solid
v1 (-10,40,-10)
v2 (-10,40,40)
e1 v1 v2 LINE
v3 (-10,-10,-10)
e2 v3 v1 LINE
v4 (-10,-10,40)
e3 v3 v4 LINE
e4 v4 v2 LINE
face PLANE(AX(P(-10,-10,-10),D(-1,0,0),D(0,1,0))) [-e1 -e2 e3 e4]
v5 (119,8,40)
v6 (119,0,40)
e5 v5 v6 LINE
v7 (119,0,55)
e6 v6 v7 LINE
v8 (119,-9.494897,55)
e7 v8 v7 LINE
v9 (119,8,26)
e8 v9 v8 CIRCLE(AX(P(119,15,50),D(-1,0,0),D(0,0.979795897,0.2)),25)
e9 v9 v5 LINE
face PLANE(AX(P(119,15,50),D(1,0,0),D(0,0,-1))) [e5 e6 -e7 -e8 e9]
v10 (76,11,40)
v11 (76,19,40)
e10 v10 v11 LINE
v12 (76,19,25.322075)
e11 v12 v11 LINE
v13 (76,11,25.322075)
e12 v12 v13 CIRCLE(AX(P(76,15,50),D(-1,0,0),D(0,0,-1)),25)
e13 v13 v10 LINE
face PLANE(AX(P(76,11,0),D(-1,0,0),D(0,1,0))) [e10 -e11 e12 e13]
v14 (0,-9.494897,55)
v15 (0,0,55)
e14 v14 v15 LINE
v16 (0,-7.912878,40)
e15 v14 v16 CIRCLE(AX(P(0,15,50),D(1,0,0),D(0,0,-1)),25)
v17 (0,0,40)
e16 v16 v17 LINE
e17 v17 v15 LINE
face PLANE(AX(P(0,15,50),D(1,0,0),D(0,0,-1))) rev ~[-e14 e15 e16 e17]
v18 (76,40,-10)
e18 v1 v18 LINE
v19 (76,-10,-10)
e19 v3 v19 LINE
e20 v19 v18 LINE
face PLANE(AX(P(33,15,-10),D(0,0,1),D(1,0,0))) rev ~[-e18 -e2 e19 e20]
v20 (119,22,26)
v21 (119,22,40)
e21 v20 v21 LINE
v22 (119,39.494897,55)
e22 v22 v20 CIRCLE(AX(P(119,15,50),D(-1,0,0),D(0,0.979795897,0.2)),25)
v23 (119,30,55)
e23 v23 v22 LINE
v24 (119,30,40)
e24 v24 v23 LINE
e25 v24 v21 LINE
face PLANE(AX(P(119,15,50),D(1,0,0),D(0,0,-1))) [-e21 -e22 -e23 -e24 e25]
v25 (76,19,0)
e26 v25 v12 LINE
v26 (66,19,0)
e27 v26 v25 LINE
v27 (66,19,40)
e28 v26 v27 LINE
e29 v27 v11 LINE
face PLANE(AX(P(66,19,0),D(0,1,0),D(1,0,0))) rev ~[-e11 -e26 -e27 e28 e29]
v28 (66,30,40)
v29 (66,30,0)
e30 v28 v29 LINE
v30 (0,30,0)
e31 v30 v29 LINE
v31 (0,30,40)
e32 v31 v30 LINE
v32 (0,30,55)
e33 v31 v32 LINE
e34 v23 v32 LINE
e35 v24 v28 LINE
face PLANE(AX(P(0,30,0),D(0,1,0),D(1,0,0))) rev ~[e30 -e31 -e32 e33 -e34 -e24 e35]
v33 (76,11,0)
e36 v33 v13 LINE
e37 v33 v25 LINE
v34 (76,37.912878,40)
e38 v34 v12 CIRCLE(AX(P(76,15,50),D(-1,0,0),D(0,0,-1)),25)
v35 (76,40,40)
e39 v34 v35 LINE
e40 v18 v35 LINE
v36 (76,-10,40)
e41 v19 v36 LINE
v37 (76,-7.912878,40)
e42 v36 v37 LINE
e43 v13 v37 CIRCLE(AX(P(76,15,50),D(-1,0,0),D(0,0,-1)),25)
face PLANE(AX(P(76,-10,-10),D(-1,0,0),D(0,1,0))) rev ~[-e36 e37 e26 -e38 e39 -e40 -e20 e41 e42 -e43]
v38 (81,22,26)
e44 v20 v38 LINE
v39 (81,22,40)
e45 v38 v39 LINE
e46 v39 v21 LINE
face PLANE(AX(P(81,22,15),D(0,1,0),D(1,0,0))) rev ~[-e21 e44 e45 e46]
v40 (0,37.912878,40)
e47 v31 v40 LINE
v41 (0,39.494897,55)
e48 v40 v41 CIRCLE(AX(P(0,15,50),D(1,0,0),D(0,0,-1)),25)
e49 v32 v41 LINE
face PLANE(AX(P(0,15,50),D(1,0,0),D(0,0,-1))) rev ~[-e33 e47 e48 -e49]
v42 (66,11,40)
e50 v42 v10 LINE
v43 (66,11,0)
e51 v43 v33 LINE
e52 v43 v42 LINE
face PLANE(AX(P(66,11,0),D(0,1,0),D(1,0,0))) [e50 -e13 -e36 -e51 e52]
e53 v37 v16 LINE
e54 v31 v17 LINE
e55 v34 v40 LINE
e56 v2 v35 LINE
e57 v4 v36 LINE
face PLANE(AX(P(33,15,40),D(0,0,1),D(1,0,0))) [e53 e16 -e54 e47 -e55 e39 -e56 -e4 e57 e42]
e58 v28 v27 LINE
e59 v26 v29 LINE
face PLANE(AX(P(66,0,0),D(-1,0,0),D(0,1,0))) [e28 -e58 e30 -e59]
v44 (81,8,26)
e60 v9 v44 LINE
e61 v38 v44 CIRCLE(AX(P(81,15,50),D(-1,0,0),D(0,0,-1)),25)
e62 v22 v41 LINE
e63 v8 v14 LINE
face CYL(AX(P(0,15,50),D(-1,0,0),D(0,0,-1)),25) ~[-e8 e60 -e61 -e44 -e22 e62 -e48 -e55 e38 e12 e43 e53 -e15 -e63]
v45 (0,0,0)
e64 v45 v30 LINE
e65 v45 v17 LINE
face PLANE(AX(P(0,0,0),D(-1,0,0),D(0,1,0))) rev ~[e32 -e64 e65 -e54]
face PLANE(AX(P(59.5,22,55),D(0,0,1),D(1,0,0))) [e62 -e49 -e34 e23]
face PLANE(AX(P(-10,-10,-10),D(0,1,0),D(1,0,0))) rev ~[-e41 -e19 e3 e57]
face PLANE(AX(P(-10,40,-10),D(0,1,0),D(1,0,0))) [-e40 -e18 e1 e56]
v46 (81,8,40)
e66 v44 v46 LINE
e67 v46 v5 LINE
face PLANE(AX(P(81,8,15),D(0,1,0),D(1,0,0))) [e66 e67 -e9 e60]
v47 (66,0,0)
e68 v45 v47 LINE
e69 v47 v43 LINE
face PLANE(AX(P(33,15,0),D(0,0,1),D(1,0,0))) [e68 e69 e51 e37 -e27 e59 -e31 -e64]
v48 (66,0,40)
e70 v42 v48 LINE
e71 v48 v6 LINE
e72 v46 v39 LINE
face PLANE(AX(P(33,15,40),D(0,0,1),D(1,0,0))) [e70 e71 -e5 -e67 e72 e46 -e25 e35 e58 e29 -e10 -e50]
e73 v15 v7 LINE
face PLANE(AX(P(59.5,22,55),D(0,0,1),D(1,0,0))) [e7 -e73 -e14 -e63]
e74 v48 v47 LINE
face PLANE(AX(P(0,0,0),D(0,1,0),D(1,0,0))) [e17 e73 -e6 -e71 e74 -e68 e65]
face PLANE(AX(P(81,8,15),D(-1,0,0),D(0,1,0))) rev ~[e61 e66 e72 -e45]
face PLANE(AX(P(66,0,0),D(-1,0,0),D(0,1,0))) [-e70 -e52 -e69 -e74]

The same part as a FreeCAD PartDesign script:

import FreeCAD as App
import Part
import Sketcher

doc = App.newDocument("Part")
body = doc.addObject("PartDesign::Body", "Body")

# Sketch on XY plane
sketch1 = body.newObject("Sketcher::SketchObject", "Sketch")
sketch1.AttachmentSupport = (doc.getObject("XY_Plane"), [""])
sketch1.MapMode = "FlatFace"
sketch1.addGeometry(Part.LineSegment(App.Vector(66, 19, 0), App.Vector(66, 11, 0)), False)
sketch1.addGeometry(Part.LineSegment(App.Vector(66, 11, 0), App.Vector(76, 11, 0)), False)
sketch1.addGeometry(Part.LineSegment(App.Vector(76, 11, 0), App.Vector(76, 19, 0)), False)
sketch1.addGeometry(Part.LineSegment(App.Vector(76, 19, 0), App.Vector(66, 19, 0)), False)
sketch1.addConstraint(Sketcher.Constraint("Coincident", 0, 2, 1, 1))
sketch1.addConstraint(Sketcher.Constraint("Coincident", 1, 2, 2, 1))
sketch1.addConstraint(Sketcher.Constraint("Coincident", 2, 2, 3, 1))
sketch1.addConstraint(Sketcher.Constraint("Coincident", 3, 2, 0, 1))
sketch1.addConstraint(Sketcher.Constraint("Vertical", 0))
sketch1.addConstraint(Sketcher.Constraint("Horizontal", 1))
sketch1.addConstraint(Sketcher.Constraint("Vertical", 2))
sketch1.addConstraint(Sketcher.Constraint("Horizontal", 3))
sketch1.addConstraint(Sketcher.Constraint("DistanceX", 1, 1, 1, 2, 10.0))
sketch1.addConstraint(Sketcher.Constraint("DistanceY", 0, 2, 0, 1, 8.0))
sketch1.addConstraint(Sketcher.Constraint("DistanceX", -1, 1, 0, 2, 66.0))
sketch1.addConstraint(Sketcher.Constraint("DistanceY", -1, 1, 0, 2, 11.0))
pad1 = body.newObject("PartDesign::Pad", "Pad")
pad1.Profile = sketch1
pad1.Length = 40
body2 = doc.addObject("PartDesign::Body", "Body001")

# Sketch on XY plane
sketch2 = body2.newObject("Sketcher::SketchObject", "Sketch001")
sketch2.AttachmentSupport = (doc.getObject("XY_Plane001"), [""])
sketch2.MapMode = "FlatFace"
sketch2.AttachmentOffset = App.Placement(App.Vector(0, 0, 15), App.Rotation())
sketch2.addGeometry(Part.LineSegment(App.Vector(81, 22, 0), App.Vector(81, 8, 0)), False)
sketch2.addGeometry(Part.LineSegment(App.Vector(81, 8, 0), App.Vector(148, 8, 0)), False)
sketch2.addGeometry(Part.LineSegment(App.Vector(148, 8, 0), App.Vector(148, 22, 0)), False)
sketch2.addGeometry(Part.LineSegment(App.Vector(148, 22, 0), App.Vector(81, 22, 0)), False)
sketch2.addConstraint(Sketcher.Constraint("Coincident", 0, 2, 1, 1))
sketch2.addConstraint(Sketcher.Constraint("Coincident", 1, 2, 2, 1))
sketch2.addConstraint(Sketcher.Constraint("Coincident", 2, 2, 3, 1))
sketch2.addConstraint(Sketcher.Constraint("Coincident", 3, 2, 0, 1))
sketch2.addConstraint(Sketcher.Constraint("Vertical", 0))
sketch2.addConstraint(Sketcher.Constraint("Horizontal", 1))
sketch2.addConstraint(Sketcher.Constraint("Vertical", 2))
sketch2.addConstraint(Sketcher.Constraint("Horizontal", 3))
sketch2.addConstraint(Sketcher.Constraint("DistanceX", 1, 1, 1, 2, 67.0))
sketch2.addConstraint(Sketcher.Constraint("DistanceY", 0, 2, 0, 1, 14.0))
sketch2.addConstraint(Sketcher.Constraint("DistanceX", -1, 1, 0, 2, 81.0))
sketch2.addConstraint(Sketcher.Constraint("DistanceY", -1, 1, 0, 2, 8.0))
pad2 = body2.newObject("PartDesign::Pad", "Pad001")
pad2.Profile = sketch2
pad2.Length = 25
body3 = doc.addObject("PartDesign::Body", "Body002")

# Sketch on XY plane
sketch3 = body3.newObject("Sketcher::SketchObject", "Sketch002")
sketch3.AttachmentSupport = (doc.getObject("XY_Plane002"), [""])
sketch3.MapMode = "FlatFace"
sketch3.AttachmentOffset = App.Placement(App.Vector(0, 0, 40), App.Rotation())
sketch3.addGeometry(Part.LineSegment(App.Vector(66, 30, 0), App.Vector(66, 0, 0)), False)
sketch3.addGeometry(Part.LineSegment(App.Vector(66, 0, 0), App.Vector(133, 0, 0)), False)
sketch3.addGeometry(Part.LineSegment(App.Vector(133, 0, 0), App.Vector(133, 30, 0)), False)
sketch3.addGeometry(Part.LineSegment(App.Vector(133, 30, 0), App.Vector(66, 30, 0)), False)
sketch3.addConstraint(Sketcher.Constraint("Coincident", 0, 2, 1, 1))
sketch3.addConstraint(Sketcher.Constraint("Coincident", 1, 2, 2, 1))
sketch3.addConstraint(Sketcher.Constraint("Coincident", 2, 2, 3, 1))
sketch3.addConstraint(Sketcher.Constraint("Coincident", 3, 2, 0, 1))
sketch3.addConstraint(Sketcher.Constraint("Vertical", 0))
sketch3.addConstraint(Sketcher.Constraint("Horizontal", 1))
sketch3.addConstraint(Sketcher.Constraint("Vertical", 2))
sketch3.addConstraint(Sketcher.Constraint("Horizontal", 3))
sketch3.addConstraint(Sketcher.Constraint("PointOnObject", 0, 2, -1))
sketch3.addConstraint(Sketcher.Constraint("DistanceX", 1, 1, 1, 2, 67.0))
sketch3.addConstraint(Sketcher.Constraint("DistanceY", 0, 2, 0, 1, 30.0))
sketch3.addConstraint(Sketcher.Constraint("DistanceX", -1, 1, 0, 2, 66.0))
pad3 = body3.newObject("PartDesign::Pad", "Pad002")
pad3.Profile = sketch3
pad3.Length = 15
body4 = doc.addObject("PartDesign::Body", "Body003")

# Sketch on XY plane
sketch4 = body4.newObject("Sketcher::SketchObject", "Sketch003")
sketch4.AttachmentSupport = (doc.getObject("XY_Plane003"), [""])
sketch4.MapMode = "FlatFace"
sketch4.AttachmentOffset = App.Placement(App.Vector(0, 0, 55), App.Rotation())
sketch4.addGeometry(Part.LineSegment(App.Vector(0, 57, 0), App.Vector(0, -13, 0)), False)
sketch4.addGeometry(Part.LineSegment(App.Vector(0, -13, 0), App.Vector(119, -13, 0)), False)
sketch4.addGeometry(Part.LineSegment(App.Vector(119, -13, 0), App.Vector(119, 57, 0)), False)
sketch4.addGeometry(Part.LineSegment(App.Vector(119, 57, 0), App.Vector(0, 57, 0)), False)
sketch4.addConstraint(Sketcher.Constraint("Coincident", 0, 2, 1, 1))
sketch4.addConstraint(Sketcher.Constraint("Coincident", 1, 2, 2, 1))
sketch4.addConstraint(Sketcher.Constraint("Coincident", 2, 2, 3, 1))
sketch4.addConstraint(Sketcher.Constraint("Coincident", 3, 2, 0, 1))
sketch4.addConstraint(Sketcher.Constraint("Vertical", 0))
sketch4.addConstraint(Sketcher.Constraint("Horizontal", 1))
sketch4.addConstraint(Sketcher.Constraint("Vertical", 2))
sketch4.addConstraint(Sketcher.Constraint("Horizontal", 3))
sketch4.addConstraint(Sketcher.Constraint("PointOnObject", 0, 2, -2))
sketch4.addConstraint(Sketcher.Constraint("DistanceX", 1, 1, 1, 2, 119.0))
sketch4.addConstraint(Sketcher.Constraint("DistanceY", 0, 2, 0, 1, 70.0))
sketch4.addConstraint(Sketcher.Constraint("DistanceY", 0, 2, -1, 1, 13.0))
pad4 = body4.newObject("PartDesign::Pad", "Pad003")
pad4.Profile = sketch4
pad4.Length = 30
body5 = doc.addObject("PartDesign::Body", "Body004")

# Sketch on XY plane
sketch5 = body5.newObject("Sketcher::SketchObject", "Sketch004")
sketch5.AttachmentSupport = (doc.getObject("XY_Plane004"), [""])
sketch5.MapMode = "FlatFace"
sketch5.addGeometry(Part.LineSegment(App.Vector(0, 30, 0), App.Vector(0, 0, 0)), False)
sketch5.addGeometry(Part.LineSegment(App.Vector(0, 0, 0), App.Vector(66, 0, 0)), False)
sketch5.addGeometry(Part.LineSegment(App.Vector(66, 0, 0), App.Vector(66, 30, 0)), False)
sketch5.addGeometry(Part.LineSegment(App.Vector(66, 30, 0), App.Vector(0, 30, 0)), False)
sketch5.addConstraint(Sketcher.Constraint("Coincident", 0, 2, 1, 1))
sketch5.addConstraint(Sketcher.Constraint("Coincident", 1, 2, 2, 1))
sketch5.addConstraint(Sketcher.Constraint("Coincident", 2, 2, 3, 1))
sketch5.addConstraint(Sketcher.Constraint("Coincident", 3, 2, 0, 1))
sketch5.addConstraint(Sketcher.Constraint("Vertical", 0))
sketch5.addConstraint(Sketcher.Constraint("Horizontal", 1))
sketch5.addConstraint(Sketcher.Constraint("Vertical", 2))
sketch5.addConstraint(Sketcher.Constraint("Horizontal", 3))
sketch5.addConstraint(Sketcher.Constraint("Coincident", 0, 2, -1, 1))
sketch5.addConstraint(Sketcher.Constraint("DistanceX", 1, 1, 1, 2, 66.0))
sketch5.addConstraint(Sketcher.Constraint("DistanceY", 0, 2, 0, 1, 30.0))
pad5 = body5.newObject("PartDesign::Pad", "Pad004")
pad5.Profile = sketch5
pad5.Length = 60
body6 = doc.addObject("PartDesign::Body", "Body005")

# Sketch on YZ plane
sketch6 = body6.newObject("Sketcher::SketchObject", "Sketch005")
sketch6.AttachmentSupport = (doc.getObject("YZ_Plane005"), [""])
sketch6.MapMode = "FlatFace"
sketch6.addGeometry(Part.Circle(App.Vector(15, 50, 0), App.Vector(0, 0, 1), 25), False)
sketch6.addConstraint(Sketcher.Constraint("Diameter", 0, 50.0))
sketch6.addConstraint(Sketcher.Constraint("DistanceX", -1, 1, 0, 3, 15.0))
sketch6.addConstraint(Sketcher.Constraint("DistanceY", -1, 1, 0, 3, 50.0))
pad6 = body6.newObject("PartDesign::Pad", "Pad005")
pad6.Profile = sketch6
pad6.Length = 119
doc.recompute()

body7 = doc.addObject("PartDesign::Body", "Body006")
body7.BaseFeature = body5
boolean = body6.newObject("PartDesign::Boolean", "Boolean")
boolean.Type = "Cut"
boolean.addObjects([body7])
doc.recompute()

boolean2 = body6.newObject("PartDesign::Boolean", "Boolean001")
boolean2.Type = "Cut"
boolean2.addObjects([body4])
doc.recompute()

boolean3 = body6.newObject("PartDesign::Boolean", "Boolean002")
boolean3.Type = "Cut"
boolean3.addObjects([body3])
doc.recompute()

boolean4 = body6.newObject("PartDesign::Boolean", "Boolean003")
boolean4.Type = "Cut"
boolean4.addObjects([body2])
body8 = doc.addObject("PartDesign::Body", "Body007")

# Sketch on XY plane
sketch7 = body8.newObject("Sketcher::SketchObject", "Sketch006")
sketch7.AttachmentSupport = (doc.getObject("XY_Plane007"), [""])
sketch7.MapMode = "FlatFace"
sketch7.AttachmentOffset = App.Placement(App.Vector(0, 0, -10), App.Rotation())
sketch7.addGeometry(Part.LineSegment(App.Vector(-10, 40, 0), App.Vector(-10, -10, 0)), False)
sketch7.addGeometry(Part.LineSegment(App.Vector(-10, -10, 0), App.Vector(76, -10, 0)), False)
sketch7.addGeometry(Part.LineSegment(App.Vector(76, -10, 0), App.Vector(76, 40, 0)), False)
sketch7.addGeometry(Part.LineSegment(App.Vector(76, 40, 0), App.Vector(-10, 40, 0)), False)
sketch7.addConstraint(Sketcher.Constraint("Coincident", 0, 2, 1, 1))
sketch7.addConstraint(Sketcher.Constraint("Coincident", 1, 2, 2, 1))
sketch7.addConstraint(Sketcher.Constraint("Coincident", 2, 2, 3, 1))
sketch7.addConstraint(Sketcher.Constraint("Coincident", 3, 2, 0, 1))
sketch7.addConstraint(Sketcher.Constraint("Vertical", 0))
sketch7.addConstraint(Sketcher.Constraint("Horizontal", 1))
sketch7.addConstraint(Sketcher.Constraint("Vertical", 2))
sketch7.addConstraint(Sketcher.Constraint("Horizontal", 3))
sketch7.addConstraint(Sketcher.Constraint("DistanceX", 1, 1, 1, 2, 86.0))
sketch7.addConstraint(Sketcher.Constraint("DistanceY", 0, 2, 0, 1, 50.0))
sketch7.addConstraint(Sketcher.Constraint("DistanceX", 0, 2, -1, 1, 10.0))
sketch7.addConstraint(Sketcher.Constraint("DistanceY", 0, 2, -1, 1, 10.0))
pad7 = body8.newObject("PartDesign::Pad", "Pad006")
pad7.Profile = sketch7
pad7.Length = 50
doc.recompute()

boolean5 = body8.newObject("PartDesign::Boolean", "Boolean004")
boolean5.Type = "Cut"
boolean5.addObjects([body5])
doc.recompute()

boolean6 = body8.newObject("PartDesign::Boolean", "Boolean005")
boolean6.Type = "Fuse"
boolean6.addObjects([body6])
doc.recompute()

boolean7 = body8.newObject("PartDesign::Boolean", "Boolean006")
boolean7.Type = "Cut"
boolean7.addObjects([body])

doc.recompute()
